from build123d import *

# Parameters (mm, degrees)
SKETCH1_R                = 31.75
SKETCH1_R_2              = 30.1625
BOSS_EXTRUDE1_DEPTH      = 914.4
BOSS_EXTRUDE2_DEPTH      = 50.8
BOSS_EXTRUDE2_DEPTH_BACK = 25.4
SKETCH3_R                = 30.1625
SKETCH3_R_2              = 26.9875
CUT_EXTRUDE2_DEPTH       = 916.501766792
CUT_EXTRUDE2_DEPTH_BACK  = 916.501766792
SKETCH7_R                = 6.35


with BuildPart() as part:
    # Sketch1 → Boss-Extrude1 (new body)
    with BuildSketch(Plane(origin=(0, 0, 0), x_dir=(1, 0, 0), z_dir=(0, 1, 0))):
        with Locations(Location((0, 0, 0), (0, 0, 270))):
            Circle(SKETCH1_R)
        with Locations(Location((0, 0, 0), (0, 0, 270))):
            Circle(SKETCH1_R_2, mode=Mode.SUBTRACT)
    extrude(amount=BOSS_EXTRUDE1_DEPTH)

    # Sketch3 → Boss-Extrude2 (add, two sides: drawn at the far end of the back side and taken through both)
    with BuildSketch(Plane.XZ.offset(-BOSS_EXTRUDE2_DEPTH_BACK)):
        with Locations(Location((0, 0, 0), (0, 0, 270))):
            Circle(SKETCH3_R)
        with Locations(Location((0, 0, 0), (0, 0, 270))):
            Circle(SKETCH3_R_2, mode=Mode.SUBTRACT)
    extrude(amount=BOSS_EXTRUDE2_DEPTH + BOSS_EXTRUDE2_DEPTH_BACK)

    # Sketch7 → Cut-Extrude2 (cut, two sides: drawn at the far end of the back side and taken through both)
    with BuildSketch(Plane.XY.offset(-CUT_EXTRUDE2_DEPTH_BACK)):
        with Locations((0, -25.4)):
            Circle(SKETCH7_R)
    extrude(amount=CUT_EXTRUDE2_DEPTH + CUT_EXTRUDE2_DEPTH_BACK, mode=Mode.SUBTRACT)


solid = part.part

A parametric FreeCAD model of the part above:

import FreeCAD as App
import Part
import Sketcher
from FreeCAD import Vector
Q = App.Units.Quantity

doc = App.newDocument("Part")
params = doc.addObject("Spreadsheet::Sheet", "Params")
for row, (alias, value) in enumerate([
    ("sketch1_diameter", "2.5 in"),
    ("sketch1_diameter2", "2.375 in"),
    ("pad1_length", "36 in"),
    ("sketch2_diameter", "2.375 in"),
    ("sketch2_diameter2", "2.125 in"),
    ("pad2_length", "2 in"),
    ("pad2_length2", "1 in"),
    ("sketch3_diameter", "0.5 in"),
], start=1):
    params.set(f"A{row}", alias)
    params.set(f"B{row}", "=" + value)
    params.setAlias(f"B{row}", alias)

body = doc.addObject("PartDesign::Body", "Body")

# Sketch on XZ plane
sketch1 = doc.addObject("Sketcher::SketchObject", "Sketch")
body.addObject(sketch1)
sketch1.AttachmentSupport = (doc.XZ_Plane, [""])
sketch1.MapMode = "FlatFace"
sketch1.addGeometry([
    Part.Circle(Vector(0, 0, 0), Vector(0, 0, 1), 31.75),
    Part.Circle(Vector(0, 0, 0), Vector(0, 0, 1), 30.1625),
], False)
sketch1.addConstraint([
    Sketcher.Constraint("Coincident", 0, 3, -1, 1),
    Sketcher.Constraint("Coincident", 1, 3, -1, 1),
    Sketcher.Constraint("Diameter", 0, Q("2.5 in")),
    Sketcher.Constraint("Diameter", 1, Q("2.375 in")),
])
sketch1.setExpression("Constraints[2]", "Params.sketch1_diameter")
sketch1.setExpression("Constraints[3]", "Params.sketch1_diameter2")
pad1 = doc.addObject("PartDesign::Pad", "Pad")
body.addObject(pad1)
pad1.Profile = sketch1
pad1.setExpression("Length", "Params.pad1_length")
pad1.Reversed = True

# Sketch on XZ plane
sketch2 = doc.addObject("Sketcher::SketchObject", "Sketch001")
body.addObject(sketch2)
sketch2.AttachmentSupport = (doc.XZ_Plane, [""])
sketch2.MapMode = "FlatFace"
sketch2.addGeometry([
    Part.Circle(Vector(0, 0, 0), Vector(0, 0, 1), 30.1625),
    Part.Circle(Vector(0, 0, 0), Vector(0, 0, 1), 26.9875),
], False)
sketch2.addConstraint([
    Sketcher.Constraint("Coincident", 0, 3, -1, 1),
    Sketcher.Constraint("Coincident", 1, 3, -1, 1),
    Sketcher.Constraint("Diameter", 0, Q("2.375 in")),
    Sketcher.Constraint("Diameter", 1, Q("2.125 in")),
])
sketch2.setExpression("Constraints[2]", "Params.sketch2_diameter")
sketch2.setExpression("Constraints[3]", "Params.sketch2_diameter2")
pad2 = doc.addObject("PartDesign::Pad", "Pad001")
body.addObject(pad2)
pad2.Profile = sketch2
pad2.Type = "TwoLengths"
pad2.setExpression("Length", "Params.pad2_length")
pad2.setExpression("Length2", "Params.pad2_length2")

# Sketch on XY plane
sketch3 = doc.addObject("Sketcher::SketchObject", "Sketch002")
body.addObject(sketch3)
sketch3.AttachmentSupport = (doc.XY_Plane, [""])
sketch3.MapMode = "FlatFace"
sketch3.addGeometry(Part.Circle(Vector(0, -25.4, 0), Vector(0, 0, 1), 6.35), False)
sketch3.addConstraint([
    Sketcher.Constraint("PointOnObject", 0, 3, -2),
    Sketcher.Constraint("Diameter", 0, Q("0.5 in")),
    Sketcher.Constraint("DistanceY", 0, 3, -1, 1, Q("1 in")),
])
sketch3.setExpression("Constraints[1]", "Params.sketch3_diameter")
pocket1 = doc.addObject("PartDesign::Pocket", "Pocket")
body.addObject(pocket1)
pocket1.Profile = sketch3
pocket1.Type = "ThroughAll"
pocket1.Midplane = True

doc.recompute()
